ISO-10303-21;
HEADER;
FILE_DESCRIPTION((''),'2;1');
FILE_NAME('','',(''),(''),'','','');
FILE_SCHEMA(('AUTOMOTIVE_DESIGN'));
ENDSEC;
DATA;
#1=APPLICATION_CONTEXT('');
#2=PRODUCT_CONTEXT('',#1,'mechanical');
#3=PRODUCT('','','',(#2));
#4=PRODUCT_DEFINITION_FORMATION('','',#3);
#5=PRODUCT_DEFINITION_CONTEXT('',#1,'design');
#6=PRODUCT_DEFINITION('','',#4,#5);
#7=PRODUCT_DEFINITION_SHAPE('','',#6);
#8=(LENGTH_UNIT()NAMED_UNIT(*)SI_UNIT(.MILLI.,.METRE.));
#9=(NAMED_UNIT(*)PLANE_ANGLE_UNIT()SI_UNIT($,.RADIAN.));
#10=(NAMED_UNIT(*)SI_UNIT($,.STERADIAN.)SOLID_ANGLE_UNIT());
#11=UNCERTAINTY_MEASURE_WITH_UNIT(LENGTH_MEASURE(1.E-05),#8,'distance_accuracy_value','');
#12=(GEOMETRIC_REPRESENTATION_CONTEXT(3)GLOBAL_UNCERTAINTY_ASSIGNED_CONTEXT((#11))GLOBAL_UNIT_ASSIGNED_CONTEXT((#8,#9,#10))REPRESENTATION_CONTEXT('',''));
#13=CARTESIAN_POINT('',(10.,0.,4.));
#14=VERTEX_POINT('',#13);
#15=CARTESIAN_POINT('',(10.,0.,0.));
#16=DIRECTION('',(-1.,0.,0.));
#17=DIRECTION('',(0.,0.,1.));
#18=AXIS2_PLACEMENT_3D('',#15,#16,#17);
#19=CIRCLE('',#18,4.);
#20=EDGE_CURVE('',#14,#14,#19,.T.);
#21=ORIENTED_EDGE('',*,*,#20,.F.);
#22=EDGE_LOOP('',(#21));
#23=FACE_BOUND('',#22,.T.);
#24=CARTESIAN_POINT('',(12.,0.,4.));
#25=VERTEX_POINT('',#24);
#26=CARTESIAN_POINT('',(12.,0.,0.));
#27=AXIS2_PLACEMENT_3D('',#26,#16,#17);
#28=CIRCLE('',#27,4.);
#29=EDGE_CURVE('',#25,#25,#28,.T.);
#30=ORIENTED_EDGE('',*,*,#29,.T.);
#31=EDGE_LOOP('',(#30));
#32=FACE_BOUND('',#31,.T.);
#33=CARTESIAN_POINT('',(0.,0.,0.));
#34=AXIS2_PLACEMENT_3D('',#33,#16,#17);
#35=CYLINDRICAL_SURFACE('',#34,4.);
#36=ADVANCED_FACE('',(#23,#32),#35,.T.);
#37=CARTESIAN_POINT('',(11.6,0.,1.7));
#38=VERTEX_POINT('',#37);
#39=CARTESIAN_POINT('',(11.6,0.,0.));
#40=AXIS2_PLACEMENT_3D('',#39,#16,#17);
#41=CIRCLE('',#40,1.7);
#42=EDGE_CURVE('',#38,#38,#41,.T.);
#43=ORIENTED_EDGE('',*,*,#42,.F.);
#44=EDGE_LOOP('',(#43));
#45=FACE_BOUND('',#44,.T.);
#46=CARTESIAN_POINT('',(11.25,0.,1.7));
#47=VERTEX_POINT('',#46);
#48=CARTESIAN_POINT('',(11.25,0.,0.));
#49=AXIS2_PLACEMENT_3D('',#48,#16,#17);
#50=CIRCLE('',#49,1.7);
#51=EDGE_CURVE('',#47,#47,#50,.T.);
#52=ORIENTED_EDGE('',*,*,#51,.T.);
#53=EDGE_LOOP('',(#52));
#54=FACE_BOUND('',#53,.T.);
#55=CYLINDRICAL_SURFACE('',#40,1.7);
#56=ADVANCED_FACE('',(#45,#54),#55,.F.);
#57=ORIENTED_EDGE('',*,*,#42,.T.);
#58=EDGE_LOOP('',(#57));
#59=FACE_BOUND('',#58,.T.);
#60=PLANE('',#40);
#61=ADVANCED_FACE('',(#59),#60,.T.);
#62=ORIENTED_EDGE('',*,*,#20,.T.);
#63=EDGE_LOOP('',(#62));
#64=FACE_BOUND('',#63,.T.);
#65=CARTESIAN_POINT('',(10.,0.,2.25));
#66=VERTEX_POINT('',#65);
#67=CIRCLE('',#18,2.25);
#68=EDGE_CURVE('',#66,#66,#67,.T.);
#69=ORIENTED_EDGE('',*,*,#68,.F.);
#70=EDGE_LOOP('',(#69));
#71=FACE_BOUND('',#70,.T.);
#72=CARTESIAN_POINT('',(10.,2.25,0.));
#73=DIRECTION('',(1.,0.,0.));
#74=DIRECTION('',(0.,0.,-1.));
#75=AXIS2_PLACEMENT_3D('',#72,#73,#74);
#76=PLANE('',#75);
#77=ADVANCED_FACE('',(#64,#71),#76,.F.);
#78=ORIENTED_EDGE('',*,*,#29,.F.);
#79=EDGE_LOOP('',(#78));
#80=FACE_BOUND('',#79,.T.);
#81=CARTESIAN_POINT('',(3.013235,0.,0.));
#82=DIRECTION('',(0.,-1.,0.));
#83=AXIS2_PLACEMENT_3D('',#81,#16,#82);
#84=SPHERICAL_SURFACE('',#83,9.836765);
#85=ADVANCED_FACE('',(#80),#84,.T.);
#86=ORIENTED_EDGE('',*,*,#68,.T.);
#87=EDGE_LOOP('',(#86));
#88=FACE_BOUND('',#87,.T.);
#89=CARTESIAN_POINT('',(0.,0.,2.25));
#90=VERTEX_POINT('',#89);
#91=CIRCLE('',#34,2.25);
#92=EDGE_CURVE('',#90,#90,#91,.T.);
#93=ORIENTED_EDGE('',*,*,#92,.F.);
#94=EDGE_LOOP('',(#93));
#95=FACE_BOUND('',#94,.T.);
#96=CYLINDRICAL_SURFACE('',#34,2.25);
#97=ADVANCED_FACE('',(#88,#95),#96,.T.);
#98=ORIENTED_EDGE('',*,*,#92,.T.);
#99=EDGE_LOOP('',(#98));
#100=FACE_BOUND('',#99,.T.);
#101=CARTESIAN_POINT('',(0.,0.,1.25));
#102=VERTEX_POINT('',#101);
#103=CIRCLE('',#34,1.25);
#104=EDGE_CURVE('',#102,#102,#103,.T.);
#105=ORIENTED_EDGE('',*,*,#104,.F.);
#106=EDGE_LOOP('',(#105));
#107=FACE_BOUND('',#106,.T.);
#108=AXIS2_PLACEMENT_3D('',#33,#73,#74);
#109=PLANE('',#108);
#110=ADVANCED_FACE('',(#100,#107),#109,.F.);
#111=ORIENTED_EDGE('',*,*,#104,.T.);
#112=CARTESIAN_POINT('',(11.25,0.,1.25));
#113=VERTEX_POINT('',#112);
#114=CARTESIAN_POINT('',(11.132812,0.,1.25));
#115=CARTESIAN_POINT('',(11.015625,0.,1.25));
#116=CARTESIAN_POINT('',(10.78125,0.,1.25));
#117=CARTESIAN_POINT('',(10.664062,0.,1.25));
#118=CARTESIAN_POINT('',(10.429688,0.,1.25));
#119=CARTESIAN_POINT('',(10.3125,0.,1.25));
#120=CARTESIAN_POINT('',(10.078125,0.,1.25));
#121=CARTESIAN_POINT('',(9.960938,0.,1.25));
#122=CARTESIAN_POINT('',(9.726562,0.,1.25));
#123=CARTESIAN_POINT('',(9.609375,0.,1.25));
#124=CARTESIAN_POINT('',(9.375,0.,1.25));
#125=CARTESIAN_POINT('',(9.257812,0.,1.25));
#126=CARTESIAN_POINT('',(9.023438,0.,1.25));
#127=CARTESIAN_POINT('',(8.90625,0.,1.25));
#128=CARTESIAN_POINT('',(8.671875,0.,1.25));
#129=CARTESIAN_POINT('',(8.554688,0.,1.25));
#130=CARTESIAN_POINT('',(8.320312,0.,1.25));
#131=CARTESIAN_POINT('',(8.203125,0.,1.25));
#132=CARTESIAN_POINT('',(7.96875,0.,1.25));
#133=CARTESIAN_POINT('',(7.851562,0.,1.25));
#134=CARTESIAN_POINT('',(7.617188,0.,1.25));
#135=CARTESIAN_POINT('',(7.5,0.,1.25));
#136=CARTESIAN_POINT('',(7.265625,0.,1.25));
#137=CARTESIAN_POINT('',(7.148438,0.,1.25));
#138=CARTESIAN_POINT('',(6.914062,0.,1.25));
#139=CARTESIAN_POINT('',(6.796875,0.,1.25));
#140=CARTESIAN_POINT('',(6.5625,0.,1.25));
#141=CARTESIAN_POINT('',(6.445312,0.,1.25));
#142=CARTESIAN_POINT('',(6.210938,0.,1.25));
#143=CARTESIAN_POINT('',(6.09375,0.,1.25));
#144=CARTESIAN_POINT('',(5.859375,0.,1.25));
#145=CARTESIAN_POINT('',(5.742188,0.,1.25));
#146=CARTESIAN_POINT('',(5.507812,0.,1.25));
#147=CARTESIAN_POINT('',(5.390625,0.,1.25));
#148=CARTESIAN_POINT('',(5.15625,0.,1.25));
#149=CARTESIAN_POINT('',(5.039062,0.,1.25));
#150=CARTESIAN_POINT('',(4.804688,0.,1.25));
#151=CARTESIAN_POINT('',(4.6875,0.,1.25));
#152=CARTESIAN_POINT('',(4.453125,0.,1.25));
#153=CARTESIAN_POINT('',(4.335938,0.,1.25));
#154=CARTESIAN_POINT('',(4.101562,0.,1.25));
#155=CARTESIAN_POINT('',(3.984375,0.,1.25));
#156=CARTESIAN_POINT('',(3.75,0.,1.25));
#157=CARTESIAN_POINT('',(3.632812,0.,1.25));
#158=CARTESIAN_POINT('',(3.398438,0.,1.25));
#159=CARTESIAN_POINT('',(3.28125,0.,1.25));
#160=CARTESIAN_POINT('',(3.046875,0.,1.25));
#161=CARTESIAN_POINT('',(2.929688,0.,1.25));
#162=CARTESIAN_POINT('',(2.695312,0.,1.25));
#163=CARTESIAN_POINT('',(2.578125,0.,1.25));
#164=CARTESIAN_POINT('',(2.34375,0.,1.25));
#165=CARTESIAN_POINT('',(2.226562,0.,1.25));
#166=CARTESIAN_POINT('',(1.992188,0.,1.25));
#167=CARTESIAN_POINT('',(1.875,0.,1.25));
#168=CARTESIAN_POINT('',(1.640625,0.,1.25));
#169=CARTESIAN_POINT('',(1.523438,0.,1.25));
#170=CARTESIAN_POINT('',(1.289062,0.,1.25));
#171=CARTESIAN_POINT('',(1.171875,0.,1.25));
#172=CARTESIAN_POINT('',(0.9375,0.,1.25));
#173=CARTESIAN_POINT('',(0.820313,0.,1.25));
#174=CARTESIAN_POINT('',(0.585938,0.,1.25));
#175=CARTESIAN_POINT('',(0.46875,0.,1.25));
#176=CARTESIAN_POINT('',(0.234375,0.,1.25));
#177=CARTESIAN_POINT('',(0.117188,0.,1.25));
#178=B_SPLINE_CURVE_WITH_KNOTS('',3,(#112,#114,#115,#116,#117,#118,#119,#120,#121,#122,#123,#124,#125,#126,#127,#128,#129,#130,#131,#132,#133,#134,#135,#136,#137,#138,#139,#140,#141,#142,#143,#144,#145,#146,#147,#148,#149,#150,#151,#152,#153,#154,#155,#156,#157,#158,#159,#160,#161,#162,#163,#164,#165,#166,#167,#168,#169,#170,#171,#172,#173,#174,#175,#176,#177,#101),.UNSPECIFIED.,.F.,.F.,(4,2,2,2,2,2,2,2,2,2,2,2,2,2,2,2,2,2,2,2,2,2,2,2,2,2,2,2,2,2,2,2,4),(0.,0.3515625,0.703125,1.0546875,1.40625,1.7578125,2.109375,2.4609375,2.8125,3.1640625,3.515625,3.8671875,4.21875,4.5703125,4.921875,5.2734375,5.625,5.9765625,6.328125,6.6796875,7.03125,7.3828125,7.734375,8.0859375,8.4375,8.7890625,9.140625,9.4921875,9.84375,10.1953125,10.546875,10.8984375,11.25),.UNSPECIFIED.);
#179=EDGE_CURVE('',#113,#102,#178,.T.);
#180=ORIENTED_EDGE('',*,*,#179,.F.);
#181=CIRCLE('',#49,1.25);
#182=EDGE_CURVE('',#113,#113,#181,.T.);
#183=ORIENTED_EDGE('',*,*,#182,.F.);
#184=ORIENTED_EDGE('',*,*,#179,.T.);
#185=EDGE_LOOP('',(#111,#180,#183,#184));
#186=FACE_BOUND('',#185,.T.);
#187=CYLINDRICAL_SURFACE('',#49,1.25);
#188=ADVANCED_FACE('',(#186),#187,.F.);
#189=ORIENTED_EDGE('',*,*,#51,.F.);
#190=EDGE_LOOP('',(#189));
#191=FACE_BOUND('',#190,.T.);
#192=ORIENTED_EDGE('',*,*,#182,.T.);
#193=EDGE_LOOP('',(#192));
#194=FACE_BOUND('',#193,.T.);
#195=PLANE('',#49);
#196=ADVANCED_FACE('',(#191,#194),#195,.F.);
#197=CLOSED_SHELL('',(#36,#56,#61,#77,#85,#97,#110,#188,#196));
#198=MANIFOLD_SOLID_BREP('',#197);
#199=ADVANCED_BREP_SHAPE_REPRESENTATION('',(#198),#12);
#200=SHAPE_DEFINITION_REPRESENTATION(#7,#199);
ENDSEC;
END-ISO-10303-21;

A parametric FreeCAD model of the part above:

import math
import FreeCAD as App
import Part
import Sketcher
from FreeCAD import Vector

doc = App.newDocument("Part")
body = doc.addObject("PartDesign::Body", "Body")

# Sketch on XY plane
sketch1 = body.newObject("Sketcher::SketchObject", "Sketch")
sketch1.AttachmentSupport = (doc.getObject("XY_Plane"), [""])
sketch1.MapMode = "FlatFace"
sketch1.addGeometry([
    Part.LineSegment(Vector(0, 2.2, 0), Vector(0, 0, 0)),  # 0
    Part.LineSegment(Vector(0, 0, 0), Vector(12.8, 0, 0)),  # 1
    Part.ArcOfCircle(Part.Circle(Vector(3, 0, 0), Vector(0, 0, 1), 9.8), math.radians(0), math.radians(24)),  # 2
    Part.LineSegment(Vector(12, 4, 0), Vector(10, 4, 0)),  # 3
    Part.LineSegment(Vector(10, 4, 0), Vector(10, 2.2, 0)),  # 4
    Part.LineSegment(Vector(10, 2.2, 0), Vector(0, 2.2, 0)),  # 5
], False)
sketch1.addConstraint([
    Sketcher.Constraint("Coincident", 0, 2, 1, 1),
    Sketcher.Constraint("Coincident", 1, 2, 2, 1),
    Sketcher.Constraint("Coincident", 2, 2, 3, 1),
    Sketcher.Constraint("Coincident", 3, 2, 4, 1),
    Sketcher.Constraint("Coincident", 4, 2, 5, 1),
    Sketcher.Constraint("Coincident", 5, 2, 0, 1),
    Sketcher.Constraint("Vertical", 0),
    Sketcher.Constraint("Horizontal", 1),
    Sketcher.Constraint("Horizontal", 3),
    Sketcher.Constraint("Vertical", 4),
    Sketcher.Constraint("Horizontal", 5),
    Sketcher.Constraint("Coincident", 0, 2, -1, 1),
    Sketcher.Constraint("PointOnObject", 2, 3, -1),
    Sketcher.Constraint("DistanceX", 3, 2, 3, 1, 2.0),
    Sketcher.Constraint("DistanceX", 5, 2, 5, 1, 10.0),
    Sketcher.Constraint("DistanceY", -1, 1, 2, 2, 4.0),
    Sketcher.Constraint("DistanceX", 1, 1, 1, 2, 12.85),
    Sketcher.Constraint("DistanceY", 0, 2, 0, 1, 2.25),
])
revolution = body.newObject("PartDesign::Revolution", "Revolution")
revolution.Profile = sketch1
revolution.ReferenceAxis = (sketch1, ["H_Axis"])
revolution.Angle = 360

# Sketch on YZ plane
sketch2 = body.newObject("Sketcher::SketchObject", "Sketch001")
sketch2.AttachmentSupport = (doc.getObject("YZ_Plane"), [""])
sketch2.MapMode = "FlatFace"
sketch2.addGeometry(Part.Circle(Vector(0, 0, 0), Vector(0, 0, 1), 1.2), False)
sketch2.addConstraint([
    Sketcher.Constraint("Coincident", 0, 3, -1, 1),
    Sketcher.Constraint("Diameter", 0, 2.5),
])
pocket1 = body.newObject("PartDesign::Pocket", "Pocket")
pocket1.Profile = sketch2
pocket1.Length = 11.25
pocket1.Reversed = True

# Sketch on YZ plane
sketch3 = body.newObject("Sketcher::SketchObject", "Sketch002")
sketch3.AttachmentSupport = (doc.getObject("YZ_Plane"), [""])
sketch3.MapMode = "FlatFace"
sketch3.AttachmentOffset = App.Placement(Vector(0, 0, 11.25), App.Rotation())
sketch3.addGeometry(Part.Circle(Vector(0, 0, 0), Vector(0, 0, 1), 1.7), False)
sketch3.addConstraint([
    Sketcher.Constraint("Coincident", 0, 3, -1, 1),
    Sketcher.Constraint("Diameter", 0, 3.4),
])
pocket2 = body.newObject("PartDesign::Pocket", "Pocket001")
pocket2.Profile = sketch3
pocket2.Length = 0.35
pocket2.Reversed = True

doc.recompute()
